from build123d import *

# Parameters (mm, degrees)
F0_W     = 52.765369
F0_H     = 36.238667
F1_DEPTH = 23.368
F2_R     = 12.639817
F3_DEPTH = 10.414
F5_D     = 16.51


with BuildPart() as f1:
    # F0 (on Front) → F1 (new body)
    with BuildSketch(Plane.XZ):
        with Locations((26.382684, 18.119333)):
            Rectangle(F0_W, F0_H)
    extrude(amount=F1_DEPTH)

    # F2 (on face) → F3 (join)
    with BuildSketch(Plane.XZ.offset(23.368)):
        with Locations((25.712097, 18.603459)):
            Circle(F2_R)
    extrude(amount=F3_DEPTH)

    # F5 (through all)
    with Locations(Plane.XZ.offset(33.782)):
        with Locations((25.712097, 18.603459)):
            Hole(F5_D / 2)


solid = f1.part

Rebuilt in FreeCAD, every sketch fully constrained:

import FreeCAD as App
import Part
import Sketcher
Q = App.Units.Quantity


def add_polygon(sketch, points):
    """Adds a closed chain of lines whose ends are joined by coincident constraints."""
    first, n = sketch.GeometryCount, len(points)
    for a, b in zip(points, points[1:] + points[:1]):
        sketch.addGeometry(Part.LineSegment(App.Vector(*a, 0), App.Vector(*b, 0)), False)
    for i in range(n):
        sketch.addConstraint(Sketcher.Constraint("Coincident", first + i, 2, first + (i + 1) % n, 1))

doc = App.newDocument("Part")
params = doc.addObject("Spreadsheet::Sheet", "Params")
for row, (alias, value) in enumerate([
    ("pad1_length", "0.92 in"),
    ("pad2_length", "0.41 in"),
    ("sketch3_diameter", "0.65 in"),
    ("hole_diameter", "0.65 in"),
], start=1):
    params.set(f"A{row}", alias)
    params.set(f"B{row}", "=" + value)
    params.setAlias(f"B{row}", alias)

body = doc.addObject("PartDesign::Body", "Body")

sketch1 = doc.addObject("Sketcher::SketchObject", "Sketch")
body.addObject(sketch1)
sketch1.AttachmentSupport = (doc.XZ_Plane, [""])
sketch1.MapMode = "FlatFace"
add_polygon(sketch1, [(0, 36.238667), (0, 0), (52.765369, 0), (52.765369, 36.238667)])
sketch1.addConstraint([
    Sketcher.Constraint("Vertical", 0),
    Sketcher.Constraint("Horizontal", 1),
    Sketcher.Constraint("Vertical", 2),
    Sketcher.Constraint("Horizontal", 3),
    Sketcher.Constraint("Coincident", 0, 2, -1, 1),
    Sketcher.Constraint("DistanceX", 1, 1, 1, 2, 52.765369),
    Sketcher.Constraint("DistanceY", 0, 2, 0, 1, 36.238667),
])
pad1 = doc.addObject("PartDesign::Pad", "Pad")
body.addObject(pad1)
pad1.Profile = sketch1
pad1.setExpression("Length", "Params.pad1_length")

sketch2 = doc.addObject("Sketcher::SketchObject", "Sketch001")
body.addObject(sketch2)
sketch2.AttachmentSupport = (doc.XZ_Plane, [""])
sketch2.MapMode = "FlatFace"
sketch2.AttachmentOffset = App.Placement(App.Vector(0, 0, 0.92 * 25.4), App.Rotation())
sketch2.addGeometry(Part.Circle(App.Vector(25.712097, 18.603459, 0), App.Vector(0, 0, 1), 12.639817), False)
sketch2.addConstraint([
    Sketcher.Constraint("Diameter", 0, 25.279634),
    Sketcher.Constraint("DistanceY", -1, 1, 0, 3, 18.603459),
    Sketcher.Constraint("DistanceX", -1, 1, 0, 3, 25.712097),
])
pad2 = doc.addObject("PartDesign::Pad", "Pad001")
body.addObject(pad2)
pad2.Profile = sketch2
pad2.setExpression("Length", "Params.pad2_length")

sketch3 = doc.addObject("Sketcher::SketchObject", "Sketch002")
body.addObject(sketch3)
sketch3.AttachmentSupport = (doc.XZ_Plane, [""])
sketch3.MapMode = "FlatFace"
sketch3.AttachmentOffset = App.Placement(App.Vector(0, 0, 1.33 * 25.4), App.Rotation())
sketch3.addGeometry(Part.Circle(App.Vector(25.712097, 18.603459, 0), App.Vector(0, 0, 1), 8.255), False)
sketch3.addConstraint([
    Sketcher.Constraint("Diameter", 0, Q("0.65 in")),
    Sketcher.Constraint("DistanceY", -1, 1, 0, 3, 18.603459),
    Sketcher.Constraint("DistanceX", -1, 1, 0, 3, 25.712097),
])
sketch3.setExpression("Constraints[0]", "Params.sketch3_diameter")
doc.recompute()
hole = doc.addObject("PartDesign::Hole", "Hole")
body.addObject(hole)
hole.Profile = sketch3
hole.ThreadType = "None"
hole.setExpression("Diameter", "Params.hole_diameter")
hole.DepthType = "ThroughAll"

doc.recompute()
